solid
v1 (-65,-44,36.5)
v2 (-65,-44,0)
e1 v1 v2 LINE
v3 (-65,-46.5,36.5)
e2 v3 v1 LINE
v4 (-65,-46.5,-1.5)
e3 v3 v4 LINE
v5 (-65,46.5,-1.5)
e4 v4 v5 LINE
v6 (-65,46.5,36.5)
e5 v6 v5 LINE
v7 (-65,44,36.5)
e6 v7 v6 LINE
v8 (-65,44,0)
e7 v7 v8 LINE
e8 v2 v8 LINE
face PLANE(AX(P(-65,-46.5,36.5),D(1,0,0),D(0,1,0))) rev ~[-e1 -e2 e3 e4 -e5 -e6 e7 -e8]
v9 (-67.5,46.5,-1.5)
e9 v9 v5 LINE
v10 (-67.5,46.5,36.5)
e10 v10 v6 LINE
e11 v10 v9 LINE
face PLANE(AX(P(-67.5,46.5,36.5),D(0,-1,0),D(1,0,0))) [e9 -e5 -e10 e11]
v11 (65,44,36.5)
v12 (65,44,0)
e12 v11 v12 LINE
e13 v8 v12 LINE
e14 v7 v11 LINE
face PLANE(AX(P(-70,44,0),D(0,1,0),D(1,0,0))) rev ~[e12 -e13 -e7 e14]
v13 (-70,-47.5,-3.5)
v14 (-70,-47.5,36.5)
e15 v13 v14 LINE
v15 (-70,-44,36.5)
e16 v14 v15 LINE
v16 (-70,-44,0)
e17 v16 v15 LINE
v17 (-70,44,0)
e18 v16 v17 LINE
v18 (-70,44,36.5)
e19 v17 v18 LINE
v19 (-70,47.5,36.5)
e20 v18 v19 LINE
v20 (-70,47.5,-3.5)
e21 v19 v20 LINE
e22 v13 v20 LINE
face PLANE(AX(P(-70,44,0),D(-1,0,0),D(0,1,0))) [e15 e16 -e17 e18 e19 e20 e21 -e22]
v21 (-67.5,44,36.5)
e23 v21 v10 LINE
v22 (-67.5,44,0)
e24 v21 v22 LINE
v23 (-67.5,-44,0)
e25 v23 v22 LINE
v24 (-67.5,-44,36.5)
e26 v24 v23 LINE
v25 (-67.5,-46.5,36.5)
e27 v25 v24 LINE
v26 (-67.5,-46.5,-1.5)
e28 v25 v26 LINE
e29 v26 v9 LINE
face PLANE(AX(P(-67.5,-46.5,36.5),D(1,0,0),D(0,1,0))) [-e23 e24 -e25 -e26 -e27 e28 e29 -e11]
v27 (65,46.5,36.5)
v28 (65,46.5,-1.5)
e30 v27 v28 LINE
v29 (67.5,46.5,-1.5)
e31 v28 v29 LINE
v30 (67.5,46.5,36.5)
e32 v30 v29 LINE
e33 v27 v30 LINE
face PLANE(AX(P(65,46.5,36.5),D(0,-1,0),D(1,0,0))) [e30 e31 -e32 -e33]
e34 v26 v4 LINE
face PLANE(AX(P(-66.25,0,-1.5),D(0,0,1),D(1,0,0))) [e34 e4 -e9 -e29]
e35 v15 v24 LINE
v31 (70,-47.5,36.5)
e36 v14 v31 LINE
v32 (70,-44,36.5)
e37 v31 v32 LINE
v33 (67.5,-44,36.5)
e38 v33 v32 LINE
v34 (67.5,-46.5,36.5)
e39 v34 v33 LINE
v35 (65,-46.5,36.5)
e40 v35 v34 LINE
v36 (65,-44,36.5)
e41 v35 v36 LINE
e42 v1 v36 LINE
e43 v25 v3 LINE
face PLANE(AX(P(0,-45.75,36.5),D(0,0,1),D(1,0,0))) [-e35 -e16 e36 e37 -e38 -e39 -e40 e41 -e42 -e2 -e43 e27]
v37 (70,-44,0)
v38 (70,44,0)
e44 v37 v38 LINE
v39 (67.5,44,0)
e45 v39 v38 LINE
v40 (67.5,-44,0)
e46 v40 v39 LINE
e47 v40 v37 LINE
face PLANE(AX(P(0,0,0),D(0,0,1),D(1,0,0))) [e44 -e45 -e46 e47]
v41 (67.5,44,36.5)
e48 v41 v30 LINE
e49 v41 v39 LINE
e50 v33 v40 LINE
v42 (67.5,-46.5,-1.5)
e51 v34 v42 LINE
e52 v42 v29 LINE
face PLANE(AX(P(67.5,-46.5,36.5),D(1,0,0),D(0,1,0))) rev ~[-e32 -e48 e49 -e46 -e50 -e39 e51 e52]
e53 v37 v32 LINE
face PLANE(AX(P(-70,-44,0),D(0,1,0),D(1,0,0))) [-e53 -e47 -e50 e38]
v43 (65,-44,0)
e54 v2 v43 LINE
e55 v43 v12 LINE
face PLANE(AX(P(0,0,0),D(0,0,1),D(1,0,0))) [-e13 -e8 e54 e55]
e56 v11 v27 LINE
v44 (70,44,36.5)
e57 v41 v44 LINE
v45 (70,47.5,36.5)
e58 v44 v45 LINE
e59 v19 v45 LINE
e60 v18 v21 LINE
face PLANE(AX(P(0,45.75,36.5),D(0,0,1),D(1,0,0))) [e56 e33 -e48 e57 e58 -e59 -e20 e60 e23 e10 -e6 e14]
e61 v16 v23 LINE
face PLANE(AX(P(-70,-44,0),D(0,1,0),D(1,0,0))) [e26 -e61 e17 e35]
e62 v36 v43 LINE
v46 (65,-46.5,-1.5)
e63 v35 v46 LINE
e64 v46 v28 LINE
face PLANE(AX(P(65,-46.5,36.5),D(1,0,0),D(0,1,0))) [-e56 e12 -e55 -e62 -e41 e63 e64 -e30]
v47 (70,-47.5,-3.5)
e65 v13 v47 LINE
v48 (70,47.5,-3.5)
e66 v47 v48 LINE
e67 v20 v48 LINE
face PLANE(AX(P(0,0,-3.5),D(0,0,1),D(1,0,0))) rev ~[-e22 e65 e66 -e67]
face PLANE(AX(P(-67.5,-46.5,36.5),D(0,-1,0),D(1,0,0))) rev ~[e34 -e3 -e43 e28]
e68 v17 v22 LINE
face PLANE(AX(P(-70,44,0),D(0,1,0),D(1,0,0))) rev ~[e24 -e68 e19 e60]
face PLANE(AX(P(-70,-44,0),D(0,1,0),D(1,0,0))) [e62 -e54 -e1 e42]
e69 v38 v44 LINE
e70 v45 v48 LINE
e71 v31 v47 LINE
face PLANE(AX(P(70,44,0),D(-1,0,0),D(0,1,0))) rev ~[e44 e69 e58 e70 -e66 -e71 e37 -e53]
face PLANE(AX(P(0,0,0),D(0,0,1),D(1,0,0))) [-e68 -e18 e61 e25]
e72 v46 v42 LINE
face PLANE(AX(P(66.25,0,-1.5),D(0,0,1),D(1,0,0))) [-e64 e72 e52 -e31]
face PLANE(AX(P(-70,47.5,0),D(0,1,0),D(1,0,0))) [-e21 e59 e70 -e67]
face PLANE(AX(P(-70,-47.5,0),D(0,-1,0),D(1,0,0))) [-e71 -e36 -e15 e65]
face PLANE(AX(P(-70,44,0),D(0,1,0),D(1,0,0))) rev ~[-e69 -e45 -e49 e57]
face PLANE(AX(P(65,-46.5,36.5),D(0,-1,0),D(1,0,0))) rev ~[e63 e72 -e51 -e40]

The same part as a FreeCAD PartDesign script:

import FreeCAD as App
import Part
import Sketcher
from FreeCAD import Vector

doc = App.newDocument("Part")
body = doc.addObject("PartDesign::Body", "Body")

# Sketch on XY plane
sketch1 = doc.addObject("Sketcher::SketchObject", "Sketch")
body.addObject(sketch1)
sketch1.AttachmentSupport = (doc.XY_Plane, [""])
sketch1.MapMode = "FlatFace"
sketch1.addGeometry(Part.LineSegment(Vector(-70, 48, 0), Vector(-70, -48, 0)), False)
sketch1.addGeometry(Part.LineSegment(Vector(-70, -48, 0), Vector(70, -48, 0)), False)
sketch1.addGeometry(Part.LineSegment(Vector(70, -48, 0), Vector(70, 48, 0)), False)
sketch1.addGeometry(Part.LineSegment(Vector(70, 48, 0), Vector(-70, 48, 0)), False)
sketch1.addConstraint(Sketcher.Constraint("Coincident", 0, 2, 1, 1))
sketch1.addConstraint(Sketcher.Constraint("Coincident", 1, 2, 2, 1))
sketch1.addConstraint(Sketcher.Constraint("Coincident", 2, 2, 3, 1))
sketch1.addConstraint(Sketcher.Constraint("Coincident", 3, 2, 0, 1))
sketch1.addConstraint(Sketcher.Constraint("Vertical", 0))
sketch1.addConstraint(Sketcher.Constraint("Horizontal", 1))
sketch1.addConstraint(Sketcher.Constraint("Vertical", 2))
sketch1.addConstraint(Sketcher.Constraint("Horizontal", 3))
sketch1.addConstraint(Sketcher.Constraint("Symmetric", 0, 2, 2, 2, -1, 1))
sketch1.addConstraint(Sketcher.Constraint("DistanceX", 1, 1, 1, 2, 140.0))
sketch1.addConstraint(Sketcher.Constraint("DistanceY", 0, 2, 0, 1, 95.0))
pad1 = doc.addObject("PartDesign::Pad", "Pad")
body.addObject(pad1)
pad1.Profile = sketch1
pad1.Length = 3.5
pad1.Reversed = True

# Sketch on XY plane
sketch2 = doc.addObject("Sketcher::SketchObject", "Sketch001")
body.addObject(sketch2)
sketch2.AttachmentSupport = (doc.XY_Plane, [""])
sketch2.MapMode = "FlatFace"
sketch2.addGeometry(Part.LineSegment(Vector(-70, 47.5, 0), Vector(-70, 44, 0)), False)
sketch2.addGeometry(Part.LineSegment(Vector(-70, 44, 0), Vector(70, 44, 0)), False)
sketch2.addGeometry(Part.LineSegment(Vector(70, 44, 0), Vector(70, 47.5, 0)), False)
sketch2.addGeometry(Part.LineSegment(Vector(70, 47.5, 0), Vector(-70, 47.5, 0)), False)
sketch2.addGeometry(Part.LineSegment(Vector(-70, -44, 0), Vector(-70, -47.5, 0)), False)
sketch2.addGeometry(Part.LineSegment(Vector(-70, -47.5, 0), Vector(70, -47.5, 0)), False)
sketch2.addGeometry(Part.LineSegment(Vector(70, -47.5, 0), Vector(70, -44, 0)), False)
sketch2.addGeometry(Part.LineSegment(Vector(70, -44, 0), Vector(-70, -44, 0)), False)
sketch2.addConstraint(Sketcher.Constraint("Coincident", 0, 2, 1, 1))
sketch2.addConstraint(Sketcher.Constraint("Coincident", 1, 2, 2, 1))
sketch2.addConstraint(Sketcher.Constraint("Coincident", 2, 2, 3, 1))
sketch2.addConstraint(Sketcher.Constraint("Coincident", 3, 2, 0, 1))
sketch2.addConstraint(Sketcher.Constraint("Coincident", 4, 2, 5, 1))
sketch2.addConstraint(Sketcher.Constraint("Coincident", 5, 2, 6, 1))
sketch2.addConstraint(Sketcher.Constraint("Coincident", 6, 2, 7, 1))
sketch2.addConstraint(Sketcher.Constraint("Coincident", 7, 2, 4, 1))
sketch2.addConstraint(Sketcher.Constraint("Vertical", 0))
sketch2.addConstraint(Sketcher.Constraint("Horizontal", 1))
sketch2.addConstraint(Sketcher.Constraint("Vertical", 2))
sketch2.addConstraint(Sketcher.Constraint("Horizontal", 3))
sketch2.addConstraint(Sketcher.Constraint("Vertical", 4))
sketch2.addConstraint(Sketcher.Constraint("Horizontal", 5))
sketch2.addConstraint(Sketcher.Constraint("Vertical", 6))
sketch2.addConstraint(Sketcher.Constraint("Horizontal", 7))
sketch2.addConstraint(Sketcher.Constraint("Symmetric", 2, 2, 4, 2, -1, 1))
sketch2.addConstraint(Sketcher.Constraint("Symmetric", 0, 2, 6, 2, -1, 1))
sketch2.addConstraint(Sketcher.Constraint("Vertical", 3, 2, 4, 2))
sketch2.addConstraint(Sketcher.Constraint("DistanceX", 1, 1, 1, 2, 140.0))
sketch2.addConstraint(Sketcher.Constraint("DistanceY", 0, 2, 0, 1, 3.5))
sketch2.addConstraint(Sketcher.Constraint("DistanceY", -1, 1, 0, 2, 44.0))
pad2 = doc.addObject("PartDesign::Pad", "Pad001")
body.addObject(pad2)
pad2.Profile = sketch2
pad2.Length = 36.5

# Sketch on XY plane
sketch3 = doc.addObject("Sketcher::SketchObject", "Sketch002")
body.addObject(sketch3)
sketch3.AttachmentSupport = (doc.XY_Plane, [""])
sketch3.MapMode = "FlatFace"
sketch3.AttachmentOffset = App.Placement(Vector(0, 0, 36.5), App.Rotation())
sketch3.addGeometry(Part.LineSegment(Vector(-67.5, 46.5, 0), Vector(-67.5, -46.5, 0)), False)
sketch3.addGeometry(Part.LineSegment(Vector(-67.5, -46.5, 0), Vector(-65, -46.5, 0)), False)
sketch3.addGeometry(Part.LineSegment(Vector(-65, -46.5, 0), Vector(-65, 46.5, 0)), False)
sketch3.addGeometry(Part.LineSegment(Vector(-65, 46.5, 0), Vector(-67.5, 46.5, 0)), False)
sketch3.addGeometry(Part.LineSegment(Vector(65, 46.5, 0), Vector(65, -46.5, 0)), False)
sketch3.addGeometry(Part.LineSegment(Vector(65, -46.5, 0), Vector(67.5, -46.5, 0)), False)
sketch3.addGeometry(Part.LineSegment(Vector(67.5, -46.5, 0), Vector(67.5, 46.5, 0)), False)
sketch3.addGeometry(Part.LineSegment(Vector(67.5, 46.5, 0), Vector(65, 46.5, 0)), False)
sketch3.addConstraint(Sketcher.Constraint("Coincident", 0, 2, 1, 1))
sketch3.addConstraint(Sketcher.Constraint("Coincident", 1, 2, 2, 1))
sketch3.addConstraint(Sketcher.Constraint("Coincident", 2, 2, 3, 1))
sketch3.addConstraint(Sketcher.Constraint("Coincident", 3, 2, 0, 1))
sketch3.addConstraint(Sketcher.Constraint("Coincident", 4, 2, 5, 1))
sketch3.addConstraint(Sketcher.Constraint("Coincident", 5, 2, 6, 1))
sketch3.addConstraint(Sketcher.Constraint("Coincident", 6, 2, 7, 1))
sketch3.addConstraint(Sketcher.Constraint("Coincident", 7, 2, 4, 1))
sketch3.addConstraint(Sketcher.Constraint("Vertical", 0))
sketch3.addConstraint(Sketcher.Constraint("Horizontal", 1))
sketch3.addConstraint(Sketcher.Constraint("Vertical", 2))
sketch3.addConstraint(Sketcher.Constraint("Horizontal", 3))
sketch3.addConstraint(Sketcher.Constraint("Vertical", 4))
sketch3.addConstraint(Sketcher.Constraint("Horizontal", 5))
sketch3.addConstraint(Sketcher.Constraint("Vertical", 6))
sketch3.addConstraint(Sketcher.Constraint("Horizontal", 7))
sketch3.addConstraint(Sketcher.Constraint("Symmetric", 2, 2, 4, 2, -1, 1))
sketch3.addConstraint(Sketcher.Constraint("Symmetric", 0, 2, 6, 2, -1, 1))
sketch3.addConstraint(Sketcher.Constraint("Horizontal", 1, 2, 4, 2))
sketch3.addConstraint(Sketcher.Constraint("DistanceY", 0, 2, 0, 1, 93.0))
sketch3.addConstraint(Sketcher.Constraint("DistanceX", 1, 1, 1, 2, 2.5))
sketch3.addConstraint(Sketcher.Constraint("DistanceX", 1, 2, -1, 1, 65.0))
pocket1 = doc.addObject("PartDesign::Pocket", "Pocket")
body.addObject(pocket1)
pocket1.Profile = sketch3
pocket1.Length = 38

doc.recompute()
